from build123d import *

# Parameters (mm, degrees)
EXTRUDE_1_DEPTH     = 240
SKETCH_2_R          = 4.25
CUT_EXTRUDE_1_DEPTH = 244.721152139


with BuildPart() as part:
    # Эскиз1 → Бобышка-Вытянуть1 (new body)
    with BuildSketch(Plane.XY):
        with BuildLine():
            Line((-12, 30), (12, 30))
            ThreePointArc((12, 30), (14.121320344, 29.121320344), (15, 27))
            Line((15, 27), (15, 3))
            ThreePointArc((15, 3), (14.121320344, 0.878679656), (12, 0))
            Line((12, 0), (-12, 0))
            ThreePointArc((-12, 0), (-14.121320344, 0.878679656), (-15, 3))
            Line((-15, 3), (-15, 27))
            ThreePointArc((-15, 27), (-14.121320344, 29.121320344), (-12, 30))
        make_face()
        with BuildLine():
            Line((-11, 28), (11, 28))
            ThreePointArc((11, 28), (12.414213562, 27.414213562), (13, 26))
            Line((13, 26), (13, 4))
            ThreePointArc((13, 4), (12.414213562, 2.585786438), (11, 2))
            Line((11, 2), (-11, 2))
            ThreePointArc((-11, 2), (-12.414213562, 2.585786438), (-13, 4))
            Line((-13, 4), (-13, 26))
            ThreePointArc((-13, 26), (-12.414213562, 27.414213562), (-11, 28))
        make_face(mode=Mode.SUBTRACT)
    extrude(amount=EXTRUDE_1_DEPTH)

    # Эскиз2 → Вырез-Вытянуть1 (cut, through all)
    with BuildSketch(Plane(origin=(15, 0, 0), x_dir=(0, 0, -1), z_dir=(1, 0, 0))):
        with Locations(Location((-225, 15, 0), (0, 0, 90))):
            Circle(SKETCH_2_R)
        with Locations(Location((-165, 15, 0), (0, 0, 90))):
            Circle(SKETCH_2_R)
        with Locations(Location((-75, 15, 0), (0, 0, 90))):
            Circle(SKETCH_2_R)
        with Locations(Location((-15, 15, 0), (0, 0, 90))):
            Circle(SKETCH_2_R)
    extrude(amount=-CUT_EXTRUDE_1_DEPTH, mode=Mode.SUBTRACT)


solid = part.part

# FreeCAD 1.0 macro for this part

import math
import FreeCAD as App
import Part
import Sketcher
from FreeCAD import Vector
Q = App.Units.Quantity

doc = App.newDocument("Part")
body = doc.addObject("PartDesign::Body", "Body")

# Sketch on XY plane
sketch1 = body.newObject("Sketcher::SketchObject", "Sketch")
sketch1.AttachmentSupport = (doc.getObject("XY_Plane"), [""])
sketch1.MapMode = "FlatFace"
sketch1.addGeometry(Part.LineSegment(Vector(12, 30, 0), Vector(-12, 30, 0)), False)
sketch1.addGeometry(Part.ArcOfCircle(Part.Circle(Vector(-12, 27, 0), Vector(0, 0, 1), 3), math.radians(90), math.radians(180)), False)
sketch1.addGeometry(Part.LineSegment(Vector(-15, 27, 0), Vector(-15, 3, 0)), False)
sketch1.addGeometry(Part.ArcOfCircle(Part.Circle(Vector(-12, 3, 0), Vector(0, 0, 1), 3), math.radians(180), math.radians(270)), False)
sketch1.addGeometry(Part.LineSegment(Vector(-12, 0, 0), Vector(12, 0, 0)), False)
sketch1.addGeometry(Part.ArcOfCircle(Part.Circle(Vector(12, 3, 0), Vector(0, 0, 1), 3), math.radians(-90), math.radians(0)), False)
sketch1.addGeometry(Part.LineSegment(Vector(15, 3, 0), Vector(15, 27, 0)), False)
sketch1.addGeometry(Part.ArcOfCircle(Part.Circle(Vector(12, 27, 0), Vector(0, 0, 1), 3), math.radians(0), math.radians(90)), False)
sketch1.addGeometry(Part.LineSegment(Vector(-11, 28, 0), Vector(11, 28, 0)), False)
sketch1.addGeometry(Part.ArcOfCircle(Part.Circle(Vector(11, 26, 0), Vector(0, 0, 1), 2), math.radians(0), math.radians(90)), False)
sketch1.addGeometry(Part.LineSegment(Vector(13, 26, 0), Vector(13, 4, 0)), False)
sketch1.addGeometry(Part.ArcOfCircle(Part.Circle(Vector(11, 4, 0), Vector(0, 0, 1), 2), math.radians(-90), math.radians(0)), False)
sketch1.addGeometry(Part.LineSegment(Vector(11, 2, 0), Vector(-11, 2, 0)), False)
sketch1.addGeometry(Part.ArcOfCircle(Part.Circle(Vector(-11, 4, 0), Vector(0, 0, 1), 2), math.radians(-180), math.radians(-90)), False)
sketch1.addGeometry(Part.LineSegment(Vector(-13, 4, 0), Vector(-13, 26, 0)), False)
sketch1.addGeometry(Part.ArcOfCircle(Part.Circle(Vector(-11, 26, 0), Vector(0, 0, 1), 2), math.radians(90), math.radians(180)), False)
sketch1.addConstraint(Sketcher.Constraint("Tangent", 0, 2, 1, 1))
sketch1.addConstraint(Sketcher.Constraint("Tangent", 1, 2, 2, 1))
sketch1.addConstraint(Sketcher.Constraint("Tangent", 2, 2, 3, 1))
sketch1.addConstraint(Sketcher.Constraint("Tangent", 3, 2, 4, 1))
sketch1.addConstraint(Sketcher.Constraint("Tangent", 4, 2, 5, 1))
sketch1.addConstraint(Sketcher.Constraint("Tangent", 5, 2, 6, 1))
sketch1.addConstraint(Sketcher.Constraint("Tangent", 6, 2, 7, 1))
sketch1.addConstraint(Sketcher.Constraint("Tangent", 7, 2, 0, 1))
sketch1.addConstraint(Sketcher.Constraint("Tangent", 8, 2, 9, 2))
sketch1.addConstraint(Sketcher.Constraint("Tangent", 9, 1, 10, 1))
sketch1.addConstraint(Sketcher.Constraint("Tangent", 10, 2, 11, 2))
sketch1.addConstraint(Sketcher.Constraint("Tangent", 11, 1, 12, 1))
sketch1.addConstraint(Sketcher.Constraint("Tangent", 12, 2, 13, 2))
sketch1.addConstraint(Sketcher.Constraint("Tangent", 13, 1, 14, 1))
sketch1.addConstraint(Sketcher.Constraint("Tangent", 14, 2, 15, 2))
sketch1.addConstraint(Sketcher.Constraint("Tangent", 15, 1, 8, 1))
sketch1.addConstraint(Sketcher.Constraint("Horizontal", 0))
sketch1.addConstraint(Sketcher.Constraint("Vertical", 2))
sketch1.addConstraint(Sketcher.Constraint("Horizontal", 4))
sketch1.addConstraint(Sketcher.Constraint("Vertical", 6))
sketch1.addConstraint(Sketcher.Constraint("Horizontal", 8))
sketch1.addConstraint(Sketcher.Constraint("Vertical", 10))
sketch1.addConstraint(Sketcher.Constraint("Horizontal", 12))
sketch1.addConstraint(Sketcher.Constraint("Vertical", 14))
sketch1.addConstraint(Sketcher.Constraint("Equal", 1, 3))
sketch1.addConstraint(Sketcher.Constraint("Equal", 3, 5))
sketch1.addConstraint(Sketcher.Constraint("Equal", 5, 7))
sketch1.addConstraint(Sketcher.Constraint("Equal", 9, 11))
sketch1.addConstraint(Sketcher.Constraint("Equal", 11, 13))
sketch1.addConstraint(Sketcher.Constraint("Equal", 13, 15))
sketch1.addConstraint(Sketcher.Constraint("Symmetric", 3, 2, 4, 2, -1, 1))
sketch1.addConstraint(Sketcher.Constraint("Equal", 4, 2))
sketch1.addConstraint(Sketcher.Constraint("Equal", 12, 10))
sketch1.addConstraint(Sketcher.Constraint("Radius", 1, Q("3 mm")))
sketch1.addConstraint(Sketcher.Constraint("Radius", 9, Q("2 mm")))
sketch1.addConstraint(Sketcher.Constraint("DistanceX", 0, 2, 0, 1, Q("24 mm")))
sketch1.addConstraint(Sketcher.Constraint("DistanceX", 8, 1, 8, 2, Q("22 mm")))
sketch1.addConstraint(Sketcher.Constraint("DistanceX", -1, 1, 9, 3, Q("11 mm")))
sketch1.addConstraint(Sketcher.Constraint("DistanceY", -1, 1, 9, 3, Q("26 mm")))
pad1 = body.newObject("PartDesign::Pad", "Pad")
pad1.Profile = sketch1
pad1.Length = 240

# Sketch on YZ plane
sketch2 = body.newObject("Sketcher::SketchObject", "Sketch001")
sketch2.AttachmentSupport = (doc.getObject("YZ_Plane"), [""])
sketch2.MapMode = "FlatFace"
sketch2.AttachmentOffset = App.Placement(Vector(0, 0, 15), App.Rotation())
sketch2.addGeometry(Part.Circle(Vector(15, 225, 0), Vector(0, 0, 1), 4.2), False)
sketch2.addGeometry(Part.Circle(Vector(15, 165, 0), Vector(0, 0, 1), 4.2), False)
sketch2.addGeometry(Part.Circle(Vector(15, 75, 0), Vector(0, 0, 1), 4.2), False)
sketch2.addGeometry(Part.Circle(Vector(15, 15, 0), Vector(0, 0, 1), 4.2), False)
sketch2.addConstraint(Sketcher.Constraint("Equal", 0, 1))
sketch2.addConstraint(Sketcher.Constraint("Equal", 1, 2))
sketch2.addConstraint(Sketcher.Constraint("Equal", 2, 3))
sketch2.addConstraint(Sketcher.Constraint("Vertical", 0, 3, 1, 3))
sketch2.addConstraint(Sketcher.Constraint("Vertical", 1, 3, 2, 3))
sketch2.addConstraint(Sketcher.Constraint("Vertical", 2, 3, 3, 3))
sketch2.addConstraint(Sketcher.Constraint("Diameter", 0, Q("8.5 mm")))
sketch2.addConstraint(Sketcher.Constraint("DistanceX", -1, 1, 0, 3, Q("15 mm")))
sketch2.addConstraint(Sketcher.Constraint("DistanceY", -1, 1, 0, 3, Q("225 mm")))
sketch2.addConstraint(Sketcher.Constraint("DistanceY", -1, 1, 1, 3, Q("165 mm")))
sketch2.addConstraint(Sketcher.Constraint("DistanceY", -1, 1, 2, 3, Q("75 mm")))
sketch2.addConstraint(Sketcher.Constraint("DistanceY", -1, 1, 3, 3, Q("15 mm")))
pocket1 = body.newObject("PartDesign::Pocket", "Pocket")
pocket1.Profile = sketch2
pocket1.Type = "ThroughAll"

doc.recompute()
